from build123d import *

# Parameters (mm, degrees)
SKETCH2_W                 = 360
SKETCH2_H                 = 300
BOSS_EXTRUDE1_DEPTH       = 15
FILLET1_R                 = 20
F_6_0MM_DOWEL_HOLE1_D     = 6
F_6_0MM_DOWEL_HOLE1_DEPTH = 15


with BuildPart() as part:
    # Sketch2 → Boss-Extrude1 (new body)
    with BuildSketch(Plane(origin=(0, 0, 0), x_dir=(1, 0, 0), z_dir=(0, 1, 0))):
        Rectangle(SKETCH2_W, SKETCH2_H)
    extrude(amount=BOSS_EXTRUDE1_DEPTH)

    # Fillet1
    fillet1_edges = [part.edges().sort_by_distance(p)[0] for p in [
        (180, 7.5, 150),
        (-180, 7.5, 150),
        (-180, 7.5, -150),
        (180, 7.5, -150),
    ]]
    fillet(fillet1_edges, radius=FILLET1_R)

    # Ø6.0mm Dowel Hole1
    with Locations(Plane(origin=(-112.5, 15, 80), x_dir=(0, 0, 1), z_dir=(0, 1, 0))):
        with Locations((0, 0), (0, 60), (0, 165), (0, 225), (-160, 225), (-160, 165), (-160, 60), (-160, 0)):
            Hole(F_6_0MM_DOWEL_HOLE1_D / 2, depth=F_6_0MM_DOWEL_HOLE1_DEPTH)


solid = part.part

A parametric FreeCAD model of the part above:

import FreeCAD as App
import Part
import Sketcher
from FreeCAD import Vector


def edges_at(feature, points):
    """Names of the edges that pass closest to the given points."""
    edges = feature.Shape.Edges
    near = lambda p: min(range(len(edges)), key=lambda i: edges[i].distToShape(Part.Vertex(*p))[0])
    return sorted({f"Edge{near(p) + 1}" for p in points})

doc = App.newDocument("Part")
body = doc.addObject("PartDesign::Body", "Body")

# Sketch on XZ plane
sketch1 = body.newObject("Sketcher::SketchObject", "Sketch")
sketch1.AttachmentSupport = (doc.getObject("XZ_Plane"), [""])
sketch1.MapMode = "FlatFace"
sketch1.addGeometry([
    Part.LineSegment(Vector(-180, -150, 0), Vector(-180, 150, 0)),
    Part.LineSegment(Vector(-180, 150, 0), Vector(180, 150, 0)),
    Part.LineSegment(Vector(180, 150, 0), Vector(180, -150, 0)),
    Part.LineSegment(Vector(180, -150, 0), Vector(-180, -150, 0)),
], False)
sketch1.addConstraint([
    Sketcher.Constraint("Coincident", 0, 2, 1, 1),
    Sketcher.Constraint("Coincident", 1, 2, 2, 1),
    Sketcher.Constraint("Coincident", 2, 2, 3, 1),
    Sketcher.Constraint("Coincident", 3, 2, 0, 1),
    Sketcher.Constraint("Vertical", 0),
    Sketcher.Constraint("Horizontal", 1),
    Sketcher.Constraint("Vertical", 2),
    Sketcher.Constraint("Horizontal", 3),
    Sketcher.Constraint("Symmetric", 0, 2, 2, 2, -1, 1),
    Sketcher.Constraint("DistanceX", 1, 1, 1, 2, 360.0),
    Sketcher.Constraint("DistanceY", 0, 1, 0, 2, 300.0),
])
pad1 = body.newObject("PartDesign::Pad", "Pad")
pad1.Profile = sketch1
pad1.Length = 15
pad1.Reversed = True
doc.recompute()

fillet = body.newObject("PartDesign::Fillet", "Fillet")
fillet.Base = (pad1, edges_at(pad1, [
    (180, 7.5, 150),
    (-180, 7.5, 150),
    (-180, 7.5, -150),
    (180, 7.5, -150),
]))
fillet.Radius = 20

# Sketch on XZ plane
sketch2 = body.newObject("Sketcher::SketchObject", "Sketch001")
sketch2.AttachmentSupport = (doc.getObject("XZ_Plane"), [""])
sketch2.MapMode = "FlatFace"
sketch2.AttachmentOffset = App.Placement(Vector(0, 0, -15), App.Rotation())
sketch2.addGeometry([
    Part.Circle(Vector(-112.5, 80, 0), Vector(0, 0, 1), 3),  # 0
    Part.Circle(Vector(-52.5, 80, 0), Vector(0, 0, 1), 3),  # 1
    Part.Circle(Vector(52.5, 80, 0), Vector(0, 0, 1), 3),  # 2
    Part.Circle(Vector(112.5, 80, 0), Vector(0, 0, 1), 3),  # 3
    Part.Circle(Vector(112.5, -80, 0), Vector(0, 0, 1), 3),  # 4
    Part.Circle(Vector(52.5, -80, 0), Vector(0, 0, 1), 3),  # 5
    Part.Circle(Vector(-52.5, -80, 0), Vector(0, 0, 1), 3),  # 6
    Part.Circle(Vector(-112.5, -80, 0), Vector(0, 0, 1), 3),  # 7
], False)
sketch2.addConstraint([
    Sketcher.Constraint("Equal", 0, 1),
    Sketcher.Constraint("Equal", 1, 2),
    Sketcher.Constraint("Equal", 2, 3),
    Sketcher.Constraint("Equal", 3, 4),
    Sketcher.Constraint("Equal", 4, 5),
    Sketcher.Constraint("Equal", 5, 6),
    Sketcher.Constraint("Equal", 6, 7),
    Sketcher.Constraint("Symmetric", 0, 3, 4, 3, -1, 1),
    Sketcher.Constraint("Symmetric", 1, 3, 5, 3, -1, 1),
    Sketcher.Constraint("Symmetric", 2, 3, 6, 3, -1, 1),
    Sketcher.Constraint("Symmetric", 3, 3, 7, 3, -1, 1),
    Sketcher.Constraint("Symmetric", 1, 3, 2, 3, -2),
    Sketcher.Constraint("Symmetric", 0, 3, 3, 3, -2),
    Sketcher.Constraint("Horizontal", 0, 3, 1, 3),
    Sketcher.Constraint("Diameter", 0, 6.0),
    Sketcher.Constraint("DistanceY", -1, 1, 0, 3, 80.0),
    Sketcher.Constraint("DistanceX", 0, 3, 1, 3, 60.0),
    Sketcher.Constraint("DistanceX", 1, 3, 2, 3, 105.0),
])
doc.recompute()
hole = body.newObject("PartDesign::Hole", "Hole")
hole.Profile = sketch2
hole.ThreadType = "None"
hole.Diameter = 6
hole.DepthType = "Dimension"
hole.Depth = 15
hole.DrillPoint = "Flat"
hole.Reversed = True

doc.recompute()
